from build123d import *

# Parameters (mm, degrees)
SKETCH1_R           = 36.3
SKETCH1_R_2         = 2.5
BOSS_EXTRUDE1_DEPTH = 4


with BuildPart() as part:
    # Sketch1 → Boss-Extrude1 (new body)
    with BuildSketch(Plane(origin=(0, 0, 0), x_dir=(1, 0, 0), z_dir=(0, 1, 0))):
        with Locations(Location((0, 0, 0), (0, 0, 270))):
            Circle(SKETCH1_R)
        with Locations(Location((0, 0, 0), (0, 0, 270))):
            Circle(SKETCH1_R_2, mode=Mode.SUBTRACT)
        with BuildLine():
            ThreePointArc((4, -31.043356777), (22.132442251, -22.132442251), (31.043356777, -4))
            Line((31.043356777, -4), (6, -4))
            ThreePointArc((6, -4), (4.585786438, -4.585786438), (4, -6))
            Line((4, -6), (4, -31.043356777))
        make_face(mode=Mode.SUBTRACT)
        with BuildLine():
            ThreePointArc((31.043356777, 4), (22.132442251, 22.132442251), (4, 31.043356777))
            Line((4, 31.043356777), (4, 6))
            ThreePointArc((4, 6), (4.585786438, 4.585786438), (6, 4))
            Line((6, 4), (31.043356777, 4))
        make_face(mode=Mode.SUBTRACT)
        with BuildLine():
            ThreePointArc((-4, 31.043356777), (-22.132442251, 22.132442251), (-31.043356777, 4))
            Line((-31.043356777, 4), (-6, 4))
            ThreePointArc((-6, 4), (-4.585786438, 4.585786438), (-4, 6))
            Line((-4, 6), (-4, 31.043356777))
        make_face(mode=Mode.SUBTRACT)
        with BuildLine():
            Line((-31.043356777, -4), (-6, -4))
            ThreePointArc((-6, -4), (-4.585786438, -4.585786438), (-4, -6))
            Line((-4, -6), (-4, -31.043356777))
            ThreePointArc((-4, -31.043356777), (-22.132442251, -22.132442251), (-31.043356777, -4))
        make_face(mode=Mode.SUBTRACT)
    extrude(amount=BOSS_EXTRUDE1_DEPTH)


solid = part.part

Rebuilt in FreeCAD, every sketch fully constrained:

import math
import FreeCAD as App
import Part
import Sketcher
from FreeCAD import Vector

doc = App.newDocument("Part")
body = doc.addObject("PartDesign::Body", "Body")

# Sketch on XZ plane
sketch1 = body.newObject("Sketcher::SketchObject", "Sketch")
sketch1.AttachmentSupport = (doc.getObject("XZ_Plane"), [""])
sketch1.MapMode = "FlatFace"
sketch1.addGeometry(Part.Circle(Vector(0, 0, 0), Vector(0, 0, 1), 36.3), False)
sketch1.addGeometry(Part.ArcOfCircle(Part.Circle(Vector(0, 0, 0), Vector(0, 0, 1), 31.3), math.radians(-173), math.radians(-97)), False)
sketch1.addGeometry(Part.LineSegment(Vector(-4, -31, 0), Vector(-4, -6, 0)), False)
sketch1.addGeometry(Part.ArcOfCircle(Part.Circle(Vector(-6, -6, 0), Vector(0, 0, 1), 2), math.radians(0), math.radians(90)), False)
sketch1.addGeometry(Part.LineSegment(Vector(-6, -4, 0), Vector(-31, -4, 0)), False)
sketch1.addGeometry(Part.Circle(Vector(0, 0, 0), Vector(0, 0, 1), 2.5), False)
sketch1.addGeometry(Part.ArcOfCircle(Part.Circle(Vector(0, 0, 0), Vector(0, 0, 1), 31.3), math.radians(97), math.radians(173)), False)
sketch1.addGeometry(Part.LineSegment(Vector(-31, 4, 0), Vector(-6, 4, 0)), False)
sketch1.addGeometry(Part.ArcOfCircle(Part.Circle(Vector(-6, 6, 0), Vector(0, 0, 1), 2), math.radians(-90), math.radians(0)), False)
sketch1.addGeometry(Part.LineSegment(Vector(-4, 6, 0), Vector(-4, 31, 0)), False)
sketch1.addGeometry(Part.ArcOfCircle(Part.Circle(Vector(0, 0, 0), Vector(0, 0, 1), 31.3), math.radians(-83), math.radians(-7)), False)
sketch1.addGeometry(Part.LineSegment(Vector(31, -4, 0), Vector(6, -4, 0)), False)
sketch1.addGeometry(Part.ArcOfCircle(Part.Circle(Vector(6, -6, 0), Vector(0, 0, 1), 2), math.radians(90), math.radians(180)), False)
sketch1.addGeometry(Part.LineSegment(Vector(4, -6, 0), Vector(4, -31, 0)), False)
sketch1.addGeometry(Part.ArcOfCircle(Part.Circle(Vector(0, 0, 0), Vector(0, 0, 1), 31.3), math.radians(7), math.radians(83)), False)
sketch1.addGeometry(Part.LineSegment(Vector(4, 31, 0), Vector(4, 6, 0)), False)
sketch1.addGeometry(Part.ArcOfCircle(Part.Circle(Vector(6, 6, 0), Vector(0, 0, 1), 2), math.radians(-180), math.radians(-90)), False)
sketch1.addGeometry(Part.LineSegment(Vector(6, 4, 0), Vector(31, 4, 0)), False)
sketch1.addConstraint(Sketcher.Constraint("Coincident", 1, 2, 2, 1))
sketch1.addConstraint(Sketcher.Constraint("Tangent", 2, 2, 3, 1))
sketch1.addConstraint(Sketcher.Constraint("Tangent", 3, 2, 4, 1))
sketch1.addConstraint(Sketcher.Constraint("Coincident", 4, 2, 1, 1))
sketch1.addConstraint(Sketcher.Constraint("Coincident", 6, 2, 7, 1))
sketch1.addConstraint(Sketcher.Constraint("Tangent", 7, 2, 8, 1))
sketch1.addConstraint(Sketcher.Constraint("Tangent", 8, 2, 9, 1))
sketch1.addConstraint(Sketcher.Constraint("Coincident", 9, 2, 6, 1))
sketch1.addConstraint(Sketcher.Constraint("Coincident", 10, 2, 11, 1))
sketch1.addConstraint(Sketcher.Constraint("Tangent", 11, 2, 12, 1))
sketch1.addConstraint(Sketcher.Constraint("Tangent", 12, 2, 13, 1))
sketch1.addConstraint(Sketcher.Constraint("Coincident", 13, 2, 10, 1))
sketch1.addConstraint(Sketcher.Constraint("Coincident", 14, 2, 15, 1))
sketch1.addConstraint(Sketcher.Constraint("Tangent", 15, 2, 16, 1))
sketch1.addConstraint(Sketcher.Constraint("Tangent", 16, 2, 17, 1))
sketch1.addConstraint(Sketcher.Constraint("Coincident", 17, 2, 14, 1))
sketch1.addConstraint(Sketcher.Constraint("Vertical", 2))
sketch1.addConstraint(Sketcher.Constraint("Horizontal", 4))
sketch1.addConstraint(Sketcher.Constraint("Horizontal", 7))
sketch1.addConstraint(Sketcher.Constraint("Vertical", 9))
sketch1.addConstraint(Sketcher.Constraint("Horizontal", 11))
sketch1.addConstraint(Sketcher.Constraint("Vertical", 13))
sketch1.addConstraint(Sketcher.Constraint("Vertical", 15))
sketch1.addConstraint(Sketcher.Constraint("Horizontal", 17))
sketch1.addConstraint(Sketcher.Constraint("Coincident", 0, 3, -1, 1))
sketch1.addConstraint(Sketcher.Constraint("Coincident", 1, 3, -1, 1))
sketch1.addConstraint(Sketcher.Constraint("Coincident", 5, 3, -1, 1))
sketch1.addConstraint(Sketcher.Constraint("Coincident", 6, 3, -1, 1))
sketch1.addConstraint(Sketcher.Constraint("Coincident", 10, 3, -1, 1))
sketch1.addConstraint(Sketcher.Constraint("Coincident", 14, 3, -1, 1))
sketch1.addConstraint(Sketcher.Constraint("Equal", 1, 6))
sketch1.addConstraint(Sketcher.Constraint("Equal", 3, 8))
sketch1.addConstraint(Sketcher.Constraint("Equal", 6, 10))
sketch1.addConstraint(Sketcher.Constraint("Equal", 8, 12))
sketch1.addConstraint(Sketcher.Constraint("Equal", 10, 14))
sketch1.addConstraint(Sketcher.Constraint("Equal", 12, 16))
sketch1.addConstraint(Sketcher.Constraint("Symmetric", 8, 3, 12, 3, -1, 1))
sketch1.addConstraint(Sketcher.Constraint("Symmetric", 3, 3, 16, 3, -1, 1))
sketch1.addConstraint(Sketcher.Constraint("Symmetric", 3, 3, 12, 3, -2))
sketch1.addConstraint(Sketcher.Constraint("Equal", 17, 2))
sketch1.addConstraint(Sketcher.Constraint("Diameter", 5, 5.0))
sketch1.addConstraint(Sketcher.Constraint("Radius", 3, 2.0))
sketch1.addConstraint(Sketcher.Constraint("Diameter", 0, 72.6))
sketch1.addConstraint(Sketcher.Constraint("Radius", 1, 31.3))
sketch1.addConstraint(Sketcher.Constraint("DistanceX", 3, 3, -1, 1, 6.0))
pad1 = body.newObject("PartDesign::Pad", "Pad")
pad1.Profile = sketch1
pad1.Length = 4
pad1.Reversed = True

doc.recompute()
